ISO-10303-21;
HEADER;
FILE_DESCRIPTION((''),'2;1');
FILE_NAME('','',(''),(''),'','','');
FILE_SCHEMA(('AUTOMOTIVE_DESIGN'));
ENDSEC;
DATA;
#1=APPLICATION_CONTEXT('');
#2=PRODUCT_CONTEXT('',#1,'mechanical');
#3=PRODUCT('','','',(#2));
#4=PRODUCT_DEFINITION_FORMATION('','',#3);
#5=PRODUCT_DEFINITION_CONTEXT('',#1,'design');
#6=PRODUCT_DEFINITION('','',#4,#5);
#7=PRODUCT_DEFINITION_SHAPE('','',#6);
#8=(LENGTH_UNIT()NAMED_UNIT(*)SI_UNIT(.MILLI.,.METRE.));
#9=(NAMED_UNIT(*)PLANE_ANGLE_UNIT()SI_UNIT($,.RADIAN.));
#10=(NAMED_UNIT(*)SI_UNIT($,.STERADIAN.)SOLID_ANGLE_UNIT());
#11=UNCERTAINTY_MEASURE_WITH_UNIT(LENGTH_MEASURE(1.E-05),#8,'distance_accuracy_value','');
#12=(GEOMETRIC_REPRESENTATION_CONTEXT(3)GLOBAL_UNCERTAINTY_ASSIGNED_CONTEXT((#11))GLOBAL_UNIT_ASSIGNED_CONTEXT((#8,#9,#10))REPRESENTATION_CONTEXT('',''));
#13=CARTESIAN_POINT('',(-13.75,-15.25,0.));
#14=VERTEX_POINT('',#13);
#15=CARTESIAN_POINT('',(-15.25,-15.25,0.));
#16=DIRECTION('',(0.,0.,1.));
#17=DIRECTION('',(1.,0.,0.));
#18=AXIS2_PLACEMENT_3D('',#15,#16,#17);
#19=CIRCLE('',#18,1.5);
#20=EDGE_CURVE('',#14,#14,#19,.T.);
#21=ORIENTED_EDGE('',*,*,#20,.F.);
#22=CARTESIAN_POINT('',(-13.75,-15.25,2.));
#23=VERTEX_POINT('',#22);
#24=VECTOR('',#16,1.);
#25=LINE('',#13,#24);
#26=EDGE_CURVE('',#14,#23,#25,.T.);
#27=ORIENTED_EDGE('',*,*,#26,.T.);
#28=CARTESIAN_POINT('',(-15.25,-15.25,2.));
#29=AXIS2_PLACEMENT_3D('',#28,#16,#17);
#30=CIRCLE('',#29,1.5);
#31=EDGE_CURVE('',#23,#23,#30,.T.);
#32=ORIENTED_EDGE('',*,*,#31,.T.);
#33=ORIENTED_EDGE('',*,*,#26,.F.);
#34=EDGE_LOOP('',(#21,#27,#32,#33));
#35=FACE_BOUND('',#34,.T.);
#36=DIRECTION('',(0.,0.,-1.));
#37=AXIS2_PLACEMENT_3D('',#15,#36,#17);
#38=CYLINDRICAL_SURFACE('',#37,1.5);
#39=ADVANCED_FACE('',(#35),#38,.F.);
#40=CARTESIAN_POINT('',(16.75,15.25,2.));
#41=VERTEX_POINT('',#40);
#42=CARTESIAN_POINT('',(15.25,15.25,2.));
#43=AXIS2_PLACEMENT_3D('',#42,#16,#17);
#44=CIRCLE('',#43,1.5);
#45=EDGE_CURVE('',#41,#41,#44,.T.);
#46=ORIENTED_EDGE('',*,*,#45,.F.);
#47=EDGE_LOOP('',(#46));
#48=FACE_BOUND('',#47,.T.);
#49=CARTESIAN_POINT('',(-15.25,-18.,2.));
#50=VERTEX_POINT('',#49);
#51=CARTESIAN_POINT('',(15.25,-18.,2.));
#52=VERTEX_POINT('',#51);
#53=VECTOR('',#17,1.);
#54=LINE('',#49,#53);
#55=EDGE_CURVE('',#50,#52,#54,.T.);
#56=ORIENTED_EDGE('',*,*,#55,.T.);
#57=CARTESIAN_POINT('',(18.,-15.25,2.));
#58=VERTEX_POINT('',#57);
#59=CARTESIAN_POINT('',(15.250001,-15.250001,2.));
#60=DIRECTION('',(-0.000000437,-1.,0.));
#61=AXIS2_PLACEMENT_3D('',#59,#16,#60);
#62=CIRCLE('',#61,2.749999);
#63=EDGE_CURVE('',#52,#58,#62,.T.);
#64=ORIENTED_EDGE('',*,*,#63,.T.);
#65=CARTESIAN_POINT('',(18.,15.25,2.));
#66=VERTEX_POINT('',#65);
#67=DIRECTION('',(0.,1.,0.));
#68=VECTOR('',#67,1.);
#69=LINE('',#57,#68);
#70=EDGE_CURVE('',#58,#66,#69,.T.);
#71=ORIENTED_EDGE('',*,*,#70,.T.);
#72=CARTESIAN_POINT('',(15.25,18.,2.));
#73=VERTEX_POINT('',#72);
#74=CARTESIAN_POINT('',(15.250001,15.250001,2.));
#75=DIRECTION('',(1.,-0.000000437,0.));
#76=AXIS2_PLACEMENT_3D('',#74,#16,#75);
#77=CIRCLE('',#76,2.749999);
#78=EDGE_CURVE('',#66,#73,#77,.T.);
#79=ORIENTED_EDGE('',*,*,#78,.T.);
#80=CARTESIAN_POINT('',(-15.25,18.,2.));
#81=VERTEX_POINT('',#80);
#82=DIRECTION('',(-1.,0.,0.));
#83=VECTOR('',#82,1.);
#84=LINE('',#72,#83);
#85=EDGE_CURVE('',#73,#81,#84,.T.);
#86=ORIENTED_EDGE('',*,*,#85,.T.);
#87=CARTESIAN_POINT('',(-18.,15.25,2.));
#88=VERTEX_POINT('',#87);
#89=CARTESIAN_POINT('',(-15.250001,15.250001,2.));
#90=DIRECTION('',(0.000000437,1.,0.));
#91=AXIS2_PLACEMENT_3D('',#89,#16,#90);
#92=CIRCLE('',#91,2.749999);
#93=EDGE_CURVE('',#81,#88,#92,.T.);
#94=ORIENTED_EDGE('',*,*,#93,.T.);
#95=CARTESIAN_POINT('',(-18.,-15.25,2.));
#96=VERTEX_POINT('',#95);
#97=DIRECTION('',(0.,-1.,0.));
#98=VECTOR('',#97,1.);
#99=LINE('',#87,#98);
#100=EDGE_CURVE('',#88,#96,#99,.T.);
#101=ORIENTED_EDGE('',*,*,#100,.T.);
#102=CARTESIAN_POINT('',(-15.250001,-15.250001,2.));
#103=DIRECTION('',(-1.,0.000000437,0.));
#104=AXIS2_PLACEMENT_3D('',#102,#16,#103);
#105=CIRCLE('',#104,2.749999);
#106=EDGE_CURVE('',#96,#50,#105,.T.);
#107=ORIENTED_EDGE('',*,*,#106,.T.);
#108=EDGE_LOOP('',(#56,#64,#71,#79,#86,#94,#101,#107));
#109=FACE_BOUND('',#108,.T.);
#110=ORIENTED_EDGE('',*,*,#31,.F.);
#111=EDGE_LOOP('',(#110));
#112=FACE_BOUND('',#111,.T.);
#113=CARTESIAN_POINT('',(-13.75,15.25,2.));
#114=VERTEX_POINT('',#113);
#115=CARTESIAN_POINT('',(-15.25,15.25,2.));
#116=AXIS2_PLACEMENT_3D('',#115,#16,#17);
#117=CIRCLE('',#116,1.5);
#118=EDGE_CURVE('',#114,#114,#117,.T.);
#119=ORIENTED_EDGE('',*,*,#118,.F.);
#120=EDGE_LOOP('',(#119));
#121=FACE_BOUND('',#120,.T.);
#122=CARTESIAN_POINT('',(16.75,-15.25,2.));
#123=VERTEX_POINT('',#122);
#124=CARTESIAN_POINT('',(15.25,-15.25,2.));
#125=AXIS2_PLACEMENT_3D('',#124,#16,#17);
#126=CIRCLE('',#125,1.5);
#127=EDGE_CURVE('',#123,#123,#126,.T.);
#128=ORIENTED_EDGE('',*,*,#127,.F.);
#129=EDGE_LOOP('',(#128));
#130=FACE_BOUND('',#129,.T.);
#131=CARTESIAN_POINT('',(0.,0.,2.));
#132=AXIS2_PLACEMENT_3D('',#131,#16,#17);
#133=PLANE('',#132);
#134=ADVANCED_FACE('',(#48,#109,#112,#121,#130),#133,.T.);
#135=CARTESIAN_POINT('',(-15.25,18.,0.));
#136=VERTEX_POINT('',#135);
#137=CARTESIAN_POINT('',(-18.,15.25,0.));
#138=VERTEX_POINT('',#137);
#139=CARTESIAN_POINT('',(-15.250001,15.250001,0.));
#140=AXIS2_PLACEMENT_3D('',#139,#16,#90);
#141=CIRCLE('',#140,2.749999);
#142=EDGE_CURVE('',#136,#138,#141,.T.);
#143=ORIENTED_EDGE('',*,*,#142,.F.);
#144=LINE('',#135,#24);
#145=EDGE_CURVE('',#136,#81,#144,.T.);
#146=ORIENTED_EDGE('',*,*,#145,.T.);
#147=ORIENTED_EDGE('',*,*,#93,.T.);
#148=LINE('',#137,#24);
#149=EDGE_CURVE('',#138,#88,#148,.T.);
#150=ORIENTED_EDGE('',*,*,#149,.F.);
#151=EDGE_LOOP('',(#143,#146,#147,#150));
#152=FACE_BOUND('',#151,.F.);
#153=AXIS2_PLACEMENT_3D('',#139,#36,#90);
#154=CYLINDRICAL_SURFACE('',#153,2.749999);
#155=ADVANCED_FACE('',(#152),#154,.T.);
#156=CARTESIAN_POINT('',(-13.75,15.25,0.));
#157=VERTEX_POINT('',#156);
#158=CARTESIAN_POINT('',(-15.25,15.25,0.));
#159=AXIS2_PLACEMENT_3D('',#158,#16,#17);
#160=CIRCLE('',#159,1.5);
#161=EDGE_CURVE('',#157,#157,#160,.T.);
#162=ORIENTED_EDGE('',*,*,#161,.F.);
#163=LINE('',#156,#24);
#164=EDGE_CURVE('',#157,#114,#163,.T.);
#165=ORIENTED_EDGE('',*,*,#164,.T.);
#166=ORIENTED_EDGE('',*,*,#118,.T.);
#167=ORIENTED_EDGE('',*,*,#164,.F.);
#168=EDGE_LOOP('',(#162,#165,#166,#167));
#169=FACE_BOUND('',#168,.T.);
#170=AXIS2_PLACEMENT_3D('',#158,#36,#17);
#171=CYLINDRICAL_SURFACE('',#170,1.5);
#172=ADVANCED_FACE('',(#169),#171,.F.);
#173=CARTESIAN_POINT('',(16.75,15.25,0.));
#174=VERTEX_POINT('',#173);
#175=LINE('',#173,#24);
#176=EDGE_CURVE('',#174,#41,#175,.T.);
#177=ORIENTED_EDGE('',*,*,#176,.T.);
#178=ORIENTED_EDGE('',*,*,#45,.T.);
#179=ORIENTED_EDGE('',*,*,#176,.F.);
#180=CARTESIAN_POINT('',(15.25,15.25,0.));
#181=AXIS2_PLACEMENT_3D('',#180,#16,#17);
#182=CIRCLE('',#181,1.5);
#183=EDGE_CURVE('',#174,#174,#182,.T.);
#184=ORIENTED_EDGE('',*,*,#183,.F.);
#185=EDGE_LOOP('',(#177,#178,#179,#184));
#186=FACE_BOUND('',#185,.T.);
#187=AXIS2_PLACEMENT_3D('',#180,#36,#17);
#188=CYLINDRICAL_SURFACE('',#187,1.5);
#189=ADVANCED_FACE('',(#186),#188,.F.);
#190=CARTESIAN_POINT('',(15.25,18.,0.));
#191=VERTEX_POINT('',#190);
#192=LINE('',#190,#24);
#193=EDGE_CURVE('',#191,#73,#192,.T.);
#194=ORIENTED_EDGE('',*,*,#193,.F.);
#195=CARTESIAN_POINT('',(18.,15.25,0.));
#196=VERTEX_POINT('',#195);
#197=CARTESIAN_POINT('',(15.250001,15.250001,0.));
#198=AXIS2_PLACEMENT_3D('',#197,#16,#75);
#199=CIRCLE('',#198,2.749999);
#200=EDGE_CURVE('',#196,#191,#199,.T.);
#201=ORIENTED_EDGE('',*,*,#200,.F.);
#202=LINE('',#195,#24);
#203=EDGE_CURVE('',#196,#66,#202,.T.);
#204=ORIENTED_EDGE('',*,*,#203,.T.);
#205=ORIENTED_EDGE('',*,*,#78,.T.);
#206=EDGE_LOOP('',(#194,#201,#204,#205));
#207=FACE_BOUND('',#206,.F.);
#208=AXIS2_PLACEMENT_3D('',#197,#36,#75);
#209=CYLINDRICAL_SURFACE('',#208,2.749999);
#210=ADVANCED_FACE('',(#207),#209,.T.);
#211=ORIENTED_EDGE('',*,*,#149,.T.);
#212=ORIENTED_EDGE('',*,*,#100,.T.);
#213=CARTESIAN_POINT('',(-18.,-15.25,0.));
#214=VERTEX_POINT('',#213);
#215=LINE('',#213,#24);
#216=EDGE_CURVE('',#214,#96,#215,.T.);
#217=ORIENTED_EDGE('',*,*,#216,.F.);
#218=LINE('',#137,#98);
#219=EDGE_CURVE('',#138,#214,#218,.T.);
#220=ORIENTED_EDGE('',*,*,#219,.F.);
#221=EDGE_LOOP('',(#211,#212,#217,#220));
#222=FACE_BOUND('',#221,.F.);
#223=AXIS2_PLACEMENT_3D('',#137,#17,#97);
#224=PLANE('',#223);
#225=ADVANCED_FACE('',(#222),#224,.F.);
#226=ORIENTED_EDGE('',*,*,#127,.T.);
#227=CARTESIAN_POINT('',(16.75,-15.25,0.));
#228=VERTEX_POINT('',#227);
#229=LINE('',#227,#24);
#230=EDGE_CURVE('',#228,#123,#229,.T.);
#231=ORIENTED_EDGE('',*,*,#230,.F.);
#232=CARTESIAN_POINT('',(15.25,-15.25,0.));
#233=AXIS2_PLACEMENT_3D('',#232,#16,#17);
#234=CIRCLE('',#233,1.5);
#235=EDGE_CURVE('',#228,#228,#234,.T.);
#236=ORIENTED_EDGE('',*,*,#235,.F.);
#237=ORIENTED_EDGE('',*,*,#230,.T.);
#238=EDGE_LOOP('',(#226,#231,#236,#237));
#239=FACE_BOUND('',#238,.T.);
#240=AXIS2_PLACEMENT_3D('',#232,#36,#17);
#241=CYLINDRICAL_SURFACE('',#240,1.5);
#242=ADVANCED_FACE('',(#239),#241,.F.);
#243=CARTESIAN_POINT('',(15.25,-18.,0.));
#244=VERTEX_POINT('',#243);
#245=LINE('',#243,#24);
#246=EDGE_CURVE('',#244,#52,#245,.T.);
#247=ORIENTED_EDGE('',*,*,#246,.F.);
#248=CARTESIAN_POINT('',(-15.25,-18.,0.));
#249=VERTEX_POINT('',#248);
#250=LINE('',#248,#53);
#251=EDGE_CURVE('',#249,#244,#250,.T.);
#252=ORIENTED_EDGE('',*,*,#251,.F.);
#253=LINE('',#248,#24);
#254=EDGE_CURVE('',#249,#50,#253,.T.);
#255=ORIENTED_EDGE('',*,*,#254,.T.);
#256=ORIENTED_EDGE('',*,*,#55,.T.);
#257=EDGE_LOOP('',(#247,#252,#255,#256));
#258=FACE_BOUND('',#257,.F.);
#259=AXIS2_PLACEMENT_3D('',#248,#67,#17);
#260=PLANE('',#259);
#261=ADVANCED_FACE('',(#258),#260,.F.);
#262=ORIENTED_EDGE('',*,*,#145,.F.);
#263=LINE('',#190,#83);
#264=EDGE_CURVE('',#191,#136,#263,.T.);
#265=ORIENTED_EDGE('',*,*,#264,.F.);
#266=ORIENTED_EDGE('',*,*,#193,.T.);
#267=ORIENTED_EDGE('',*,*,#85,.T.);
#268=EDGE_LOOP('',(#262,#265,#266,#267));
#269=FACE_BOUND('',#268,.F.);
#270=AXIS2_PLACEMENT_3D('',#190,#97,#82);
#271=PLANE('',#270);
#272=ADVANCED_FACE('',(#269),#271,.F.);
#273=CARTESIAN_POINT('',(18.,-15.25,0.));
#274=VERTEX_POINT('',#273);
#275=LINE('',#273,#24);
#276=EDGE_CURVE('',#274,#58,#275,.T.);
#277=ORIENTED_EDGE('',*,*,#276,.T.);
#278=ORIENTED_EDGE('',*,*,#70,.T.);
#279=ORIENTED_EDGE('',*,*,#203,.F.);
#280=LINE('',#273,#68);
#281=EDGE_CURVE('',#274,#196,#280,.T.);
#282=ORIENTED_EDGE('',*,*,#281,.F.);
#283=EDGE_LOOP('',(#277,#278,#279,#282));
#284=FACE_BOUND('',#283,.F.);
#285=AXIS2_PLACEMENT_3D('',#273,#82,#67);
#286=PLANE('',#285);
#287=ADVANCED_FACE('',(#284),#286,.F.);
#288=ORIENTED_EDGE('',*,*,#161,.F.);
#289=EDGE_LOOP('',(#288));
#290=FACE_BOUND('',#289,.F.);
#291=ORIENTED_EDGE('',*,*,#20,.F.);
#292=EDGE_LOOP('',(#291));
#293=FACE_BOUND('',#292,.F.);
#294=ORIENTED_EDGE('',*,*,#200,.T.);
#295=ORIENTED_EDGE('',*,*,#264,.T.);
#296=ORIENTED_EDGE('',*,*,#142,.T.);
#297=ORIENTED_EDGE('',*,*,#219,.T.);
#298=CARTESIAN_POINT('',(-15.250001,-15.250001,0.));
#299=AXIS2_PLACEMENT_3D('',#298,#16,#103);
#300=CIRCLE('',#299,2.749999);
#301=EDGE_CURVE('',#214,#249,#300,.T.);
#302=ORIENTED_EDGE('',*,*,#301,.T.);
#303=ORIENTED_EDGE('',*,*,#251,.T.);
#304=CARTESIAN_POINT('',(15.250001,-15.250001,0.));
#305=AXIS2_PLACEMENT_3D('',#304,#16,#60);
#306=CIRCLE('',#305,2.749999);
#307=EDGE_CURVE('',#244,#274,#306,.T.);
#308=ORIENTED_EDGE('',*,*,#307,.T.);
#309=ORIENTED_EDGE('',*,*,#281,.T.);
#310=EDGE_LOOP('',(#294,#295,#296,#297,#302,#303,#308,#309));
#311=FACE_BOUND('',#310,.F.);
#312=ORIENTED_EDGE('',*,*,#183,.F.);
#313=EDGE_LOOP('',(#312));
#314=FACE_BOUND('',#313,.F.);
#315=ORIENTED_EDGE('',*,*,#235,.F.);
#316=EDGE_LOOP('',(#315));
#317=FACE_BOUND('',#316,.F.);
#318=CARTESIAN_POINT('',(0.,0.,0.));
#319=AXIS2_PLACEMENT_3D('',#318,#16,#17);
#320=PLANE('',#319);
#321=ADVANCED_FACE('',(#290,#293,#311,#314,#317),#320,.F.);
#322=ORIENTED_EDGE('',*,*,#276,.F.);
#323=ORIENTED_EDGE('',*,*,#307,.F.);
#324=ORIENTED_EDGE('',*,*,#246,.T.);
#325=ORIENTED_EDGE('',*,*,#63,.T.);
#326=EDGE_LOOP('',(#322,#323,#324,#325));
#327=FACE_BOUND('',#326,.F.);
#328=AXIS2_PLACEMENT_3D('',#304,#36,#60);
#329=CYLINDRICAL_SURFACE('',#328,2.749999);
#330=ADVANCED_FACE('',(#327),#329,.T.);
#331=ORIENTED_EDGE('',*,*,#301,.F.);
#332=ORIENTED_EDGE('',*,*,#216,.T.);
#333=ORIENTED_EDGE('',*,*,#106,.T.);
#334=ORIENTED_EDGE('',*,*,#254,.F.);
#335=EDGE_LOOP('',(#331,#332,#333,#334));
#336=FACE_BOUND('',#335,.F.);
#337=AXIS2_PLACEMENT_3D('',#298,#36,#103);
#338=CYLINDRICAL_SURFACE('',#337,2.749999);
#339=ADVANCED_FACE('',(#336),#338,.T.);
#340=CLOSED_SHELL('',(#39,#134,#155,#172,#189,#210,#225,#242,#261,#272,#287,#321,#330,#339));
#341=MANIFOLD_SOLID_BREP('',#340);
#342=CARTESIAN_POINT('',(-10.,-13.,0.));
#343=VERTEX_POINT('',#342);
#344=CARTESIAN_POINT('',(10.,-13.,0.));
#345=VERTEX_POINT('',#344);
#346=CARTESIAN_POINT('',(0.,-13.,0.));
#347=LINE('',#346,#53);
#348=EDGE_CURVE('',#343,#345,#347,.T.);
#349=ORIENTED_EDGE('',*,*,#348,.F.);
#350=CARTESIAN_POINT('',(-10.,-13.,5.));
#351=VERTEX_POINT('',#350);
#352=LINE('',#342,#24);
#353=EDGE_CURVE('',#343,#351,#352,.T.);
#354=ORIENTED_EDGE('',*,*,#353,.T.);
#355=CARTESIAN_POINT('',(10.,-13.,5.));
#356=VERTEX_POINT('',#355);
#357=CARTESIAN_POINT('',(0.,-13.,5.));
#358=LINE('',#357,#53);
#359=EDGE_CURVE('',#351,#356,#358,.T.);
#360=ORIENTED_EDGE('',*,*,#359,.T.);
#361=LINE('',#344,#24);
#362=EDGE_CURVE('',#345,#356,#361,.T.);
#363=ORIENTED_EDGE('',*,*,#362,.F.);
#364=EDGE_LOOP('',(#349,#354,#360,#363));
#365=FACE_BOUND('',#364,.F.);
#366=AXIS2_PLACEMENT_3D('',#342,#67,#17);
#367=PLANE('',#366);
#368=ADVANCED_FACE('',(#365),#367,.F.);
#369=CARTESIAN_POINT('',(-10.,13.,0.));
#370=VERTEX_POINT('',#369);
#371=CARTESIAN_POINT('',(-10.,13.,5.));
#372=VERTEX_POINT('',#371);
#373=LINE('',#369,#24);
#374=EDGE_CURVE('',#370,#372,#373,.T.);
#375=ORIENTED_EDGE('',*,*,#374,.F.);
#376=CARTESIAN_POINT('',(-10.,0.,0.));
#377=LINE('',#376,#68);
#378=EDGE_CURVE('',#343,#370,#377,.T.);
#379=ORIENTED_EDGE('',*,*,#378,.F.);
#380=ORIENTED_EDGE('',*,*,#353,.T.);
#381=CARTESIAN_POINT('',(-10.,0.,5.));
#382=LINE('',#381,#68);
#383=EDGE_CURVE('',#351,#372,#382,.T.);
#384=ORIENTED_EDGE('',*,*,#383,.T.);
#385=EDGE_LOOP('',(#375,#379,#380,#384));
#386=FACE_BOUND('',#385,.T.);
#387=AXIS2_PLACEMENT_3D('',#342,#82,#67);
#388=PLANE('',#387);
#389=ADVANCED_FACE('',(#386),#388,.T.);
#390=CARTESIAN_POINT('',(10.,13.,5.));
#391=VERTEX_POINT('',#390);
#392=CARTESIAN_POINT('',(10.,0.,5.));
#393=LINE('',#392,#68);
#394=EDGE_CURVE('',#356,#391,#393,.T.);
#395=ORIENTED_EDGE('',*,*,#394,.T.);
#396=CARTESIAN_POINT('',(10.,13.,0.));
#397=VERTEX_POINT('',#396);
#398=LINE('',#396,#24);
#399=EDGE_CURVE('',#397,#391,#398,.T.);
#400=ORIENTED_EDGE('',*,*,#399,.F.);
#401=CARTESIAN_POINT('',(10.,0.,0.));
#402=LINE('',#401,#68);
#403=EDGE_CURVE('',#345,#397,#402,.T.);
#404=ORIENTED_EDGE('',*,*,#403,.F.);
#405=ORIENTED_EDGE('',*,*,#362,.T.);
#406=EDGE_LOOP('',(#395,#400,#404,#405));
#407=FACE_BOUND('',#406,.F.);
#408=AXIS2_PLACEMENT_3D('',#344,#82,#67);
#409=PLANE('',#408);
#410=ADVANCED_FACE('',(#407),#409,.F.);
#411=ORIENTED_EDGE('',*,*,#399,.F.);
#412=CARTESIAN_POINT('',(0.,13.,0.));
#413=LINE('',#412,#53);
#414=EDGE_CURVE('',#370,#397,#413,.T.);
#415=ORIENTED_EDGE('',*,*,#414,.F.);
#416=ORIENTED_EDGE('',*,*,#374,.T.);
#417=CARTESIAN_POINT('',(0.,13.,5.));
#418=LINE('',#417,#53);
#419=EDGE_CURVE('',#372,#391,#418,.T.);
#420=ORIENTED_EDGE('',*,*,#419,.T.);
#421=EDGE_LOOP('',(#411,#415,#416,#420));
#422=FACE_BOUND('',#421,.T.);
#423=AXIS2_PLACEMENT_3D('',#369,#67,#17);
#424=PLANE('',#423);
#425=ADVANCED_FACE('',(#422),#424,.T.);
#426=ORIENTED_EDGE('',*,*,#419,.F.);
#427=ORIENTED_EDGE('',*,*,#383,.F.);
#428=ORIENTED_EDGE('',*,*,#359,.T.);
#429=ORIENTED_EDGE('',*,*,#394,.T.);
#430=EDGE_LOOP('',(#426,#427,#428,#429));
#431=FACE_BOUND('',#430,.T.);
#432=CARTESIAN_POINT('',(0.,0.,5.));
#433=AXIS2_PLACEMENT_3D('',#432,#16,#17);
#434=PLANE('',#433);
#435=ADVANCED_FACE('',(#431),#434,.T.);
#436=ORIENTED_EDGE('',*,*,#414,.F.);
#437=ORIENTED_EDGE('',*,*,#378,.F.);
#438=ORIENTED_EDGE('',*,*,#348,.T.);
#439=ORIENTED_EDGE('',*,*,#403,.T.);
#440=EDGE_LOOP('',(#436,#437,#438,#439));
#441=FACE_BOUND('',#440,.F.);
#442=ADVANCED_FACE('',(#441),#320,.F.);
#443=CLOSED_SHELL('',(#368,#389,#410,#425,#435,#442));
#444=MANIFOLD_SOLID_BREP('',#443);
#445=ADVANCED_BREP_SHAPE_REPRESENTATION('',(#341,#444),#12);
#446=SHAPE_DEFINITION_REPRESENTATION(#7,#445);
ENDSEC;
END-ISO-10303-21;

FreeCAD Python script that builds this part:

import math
import FreeCAD as App
import Part
import Sketcher

V = App.Vector

doc = App.newDocument("Part")
body = doc.addObject("PartDesign::Body", "Body")

sketch1 = body.newObject("Sketcher::SketchObject", "Sketch")
sketch1.AttachmentSupport = (doc.getObject("XY_Plane"), [""])
sketch1.MapMode = "FlatFace"
sketch1.addGeometry([
    Part.LineSegment(V(15.2, 18, 0), V(-15.2, 18, 0)),
    Part.ArcOfCircle(Part.Circle(V(-15.3, 15.3, 0), V(0, 0, 1), 2.7), math.radians(90), math.radians(180)),
    Part.LineSegment(V(-18, 15.2, 0), V(-18, -15.2, 0)),
    Part.ArcOfCircle(Part.Circle(V(-15.3, -15.3, 0), V(0, 0, 1), 2.7), math.radians(180), math.radians(270)),
    Part.LineSegment(V(-15.2, -18, 0), V(15.2, -18, 0)),
    Part.ArcOfCircle(Part.Circle(V(15.3, -15.3, 0), V(0, 0, 1), 2.7), math.radians(-90), math.radians(0)),
    Part.LineSegment(V(18, -15.2, 0), V(18, 15.2, 0)),
    Part.ArcOfCircle(Part.Circle(V(15.3, 15.3, 0), V(0, 0, 1), 2.7), math.radians(0), math.radians(90)),
    Part.Circle(V(-15.2, -15.2, 0), V(0, 0, 1), 1.5),
    Part.Circle(V(15.2, -15.2, 0), V(0, 0, 1), 1.5),
    Part.Circle(V(-15.2, 15.2, 0), V(0, 0, 1), 1.5),
    Part.Circle(V(15.2, 15.2, 0), V(0, 0, 1), 1.5),
], False)
sketch1.addConstraint([
    Sketcher.Constraint("Tangent", 0, 2, 1, 1),
    Sketcher.Constraint("Tangent", 1, 2, 2, 1),
    Sketcher.Constraint("Tangent", 2, 2, 3, 1),
    Sketcher.Constraint("Tangent", 3, 2, 4, 1),
    Sketcher.Constraint("Tangent", 4, 2, 5, 1),
    Sketcher.Constraint("Tangent", 5, 2, 6, 1),
    Sketcher.Constraint("Tangent", 6, 2, 7, 1),
    Sketcher.Constraint("Tangent", 7, 2, 0, 1),
    Sketcher.Constraint("Horizontal", 0),
    Sketcher.Constraint("Vertical", 2),
    Sketcher.Constraint("Horizontal", 4),
    Sketcher.Constraint("Vertical", 6),
    Sketcher.Constraint("Coincident", 8, 3, 3, 3),
    Sketcher.Constraint("Coincident", 9, 3, 5, 3),
    Sketcher.Constraint("Coincident", 10, 3, 1, 3),
    Sketcher.Constraint("Coincident", 11, 3, 7, 3),
    Sketcher.Constraint("Equal", 1, 3),
    Sketcher.Constraint("Equal", 3, 5),
    Sketcher.Constraint("Equal", 5, 7),
    Sketcher.Constraint("Equal", 8, 9),
    Sketcher.Constraint("Equal", 9, 10),
    Sketcher.Constraint("Equal", 10, 11),
    Sketcher.Constraint("Symmetric", 1, 3, 5, 3, -1, 1),
    Sketcher.Constraint("Equal", 4, 2),
    Sketcher.Constraint("Diameter", 8, 3.0),
    Sketcher.Constraint("Radius", 1, 2.749999),
    Sketcher.Constraint("DistanceX", 0, 2, 0, 1, 30.5),
])
pad1 = body.newObject("PartDesign::Pad", "Pad")
pad1.Profile = sketch1
pad1.Length = 2
body2 = doc.addObject("PartDesign::Body", "Body001")

sketch2 = body2.newObject("Sketcher::SketchObject", "Sketch001")
sketch2.AttachmentSupport = (doc.getObject("XY_Plane001"), [""])
sketch2.MapMode = "FlatFace"
sketch2.addGeometry([
    Part.LineSegment(V(-10, 13, 0), V(-10, -13, 0)),
    Part.LineSegment(V(-10, -13, 0), V(10, -13, 0)),
    Part.LineSegment(V(10, -13, 0), V(10, 13, 0)),
    Part.LineSegment(V(10, 13, 0), V(-10, 13, 0)),
], False)
sketch2.addConstraint([
    Sketcher.Constraint("Coincident", 0, 2, 1, 1),
    Sketcher.Constraint("Coincident", 1, 2, 2, 1),
    Sketcher.Constraint("Coincident", 2, 2, 3, 1),
    Sketcher.Constraint("Coincident", 3, 2, 0, 1),
    Sketcher.Constraint("Vertical", 0),
    Sketcher.Constraint("Horizontal", 1),
    Sketcher.Constraint("Vertical", 2),
    Sketcher.Constraint("Horizontal", 3),
    Sketcher.Constraint("Symmetric", 0, 2, 2, 2, -1, 1),
    Sketcher.Constraint("DistanceX", 1, 1, 1, 2, 20.0),
    Sketcher.Constraint("DistanceY", 0, 2, 0, 1, 26.0),
])
pad2 = body2.newObject("PartDesign::Pad", "Pad001")
pad2.Profile = sketch2
pad2.Length = 5

doc.recompute()
